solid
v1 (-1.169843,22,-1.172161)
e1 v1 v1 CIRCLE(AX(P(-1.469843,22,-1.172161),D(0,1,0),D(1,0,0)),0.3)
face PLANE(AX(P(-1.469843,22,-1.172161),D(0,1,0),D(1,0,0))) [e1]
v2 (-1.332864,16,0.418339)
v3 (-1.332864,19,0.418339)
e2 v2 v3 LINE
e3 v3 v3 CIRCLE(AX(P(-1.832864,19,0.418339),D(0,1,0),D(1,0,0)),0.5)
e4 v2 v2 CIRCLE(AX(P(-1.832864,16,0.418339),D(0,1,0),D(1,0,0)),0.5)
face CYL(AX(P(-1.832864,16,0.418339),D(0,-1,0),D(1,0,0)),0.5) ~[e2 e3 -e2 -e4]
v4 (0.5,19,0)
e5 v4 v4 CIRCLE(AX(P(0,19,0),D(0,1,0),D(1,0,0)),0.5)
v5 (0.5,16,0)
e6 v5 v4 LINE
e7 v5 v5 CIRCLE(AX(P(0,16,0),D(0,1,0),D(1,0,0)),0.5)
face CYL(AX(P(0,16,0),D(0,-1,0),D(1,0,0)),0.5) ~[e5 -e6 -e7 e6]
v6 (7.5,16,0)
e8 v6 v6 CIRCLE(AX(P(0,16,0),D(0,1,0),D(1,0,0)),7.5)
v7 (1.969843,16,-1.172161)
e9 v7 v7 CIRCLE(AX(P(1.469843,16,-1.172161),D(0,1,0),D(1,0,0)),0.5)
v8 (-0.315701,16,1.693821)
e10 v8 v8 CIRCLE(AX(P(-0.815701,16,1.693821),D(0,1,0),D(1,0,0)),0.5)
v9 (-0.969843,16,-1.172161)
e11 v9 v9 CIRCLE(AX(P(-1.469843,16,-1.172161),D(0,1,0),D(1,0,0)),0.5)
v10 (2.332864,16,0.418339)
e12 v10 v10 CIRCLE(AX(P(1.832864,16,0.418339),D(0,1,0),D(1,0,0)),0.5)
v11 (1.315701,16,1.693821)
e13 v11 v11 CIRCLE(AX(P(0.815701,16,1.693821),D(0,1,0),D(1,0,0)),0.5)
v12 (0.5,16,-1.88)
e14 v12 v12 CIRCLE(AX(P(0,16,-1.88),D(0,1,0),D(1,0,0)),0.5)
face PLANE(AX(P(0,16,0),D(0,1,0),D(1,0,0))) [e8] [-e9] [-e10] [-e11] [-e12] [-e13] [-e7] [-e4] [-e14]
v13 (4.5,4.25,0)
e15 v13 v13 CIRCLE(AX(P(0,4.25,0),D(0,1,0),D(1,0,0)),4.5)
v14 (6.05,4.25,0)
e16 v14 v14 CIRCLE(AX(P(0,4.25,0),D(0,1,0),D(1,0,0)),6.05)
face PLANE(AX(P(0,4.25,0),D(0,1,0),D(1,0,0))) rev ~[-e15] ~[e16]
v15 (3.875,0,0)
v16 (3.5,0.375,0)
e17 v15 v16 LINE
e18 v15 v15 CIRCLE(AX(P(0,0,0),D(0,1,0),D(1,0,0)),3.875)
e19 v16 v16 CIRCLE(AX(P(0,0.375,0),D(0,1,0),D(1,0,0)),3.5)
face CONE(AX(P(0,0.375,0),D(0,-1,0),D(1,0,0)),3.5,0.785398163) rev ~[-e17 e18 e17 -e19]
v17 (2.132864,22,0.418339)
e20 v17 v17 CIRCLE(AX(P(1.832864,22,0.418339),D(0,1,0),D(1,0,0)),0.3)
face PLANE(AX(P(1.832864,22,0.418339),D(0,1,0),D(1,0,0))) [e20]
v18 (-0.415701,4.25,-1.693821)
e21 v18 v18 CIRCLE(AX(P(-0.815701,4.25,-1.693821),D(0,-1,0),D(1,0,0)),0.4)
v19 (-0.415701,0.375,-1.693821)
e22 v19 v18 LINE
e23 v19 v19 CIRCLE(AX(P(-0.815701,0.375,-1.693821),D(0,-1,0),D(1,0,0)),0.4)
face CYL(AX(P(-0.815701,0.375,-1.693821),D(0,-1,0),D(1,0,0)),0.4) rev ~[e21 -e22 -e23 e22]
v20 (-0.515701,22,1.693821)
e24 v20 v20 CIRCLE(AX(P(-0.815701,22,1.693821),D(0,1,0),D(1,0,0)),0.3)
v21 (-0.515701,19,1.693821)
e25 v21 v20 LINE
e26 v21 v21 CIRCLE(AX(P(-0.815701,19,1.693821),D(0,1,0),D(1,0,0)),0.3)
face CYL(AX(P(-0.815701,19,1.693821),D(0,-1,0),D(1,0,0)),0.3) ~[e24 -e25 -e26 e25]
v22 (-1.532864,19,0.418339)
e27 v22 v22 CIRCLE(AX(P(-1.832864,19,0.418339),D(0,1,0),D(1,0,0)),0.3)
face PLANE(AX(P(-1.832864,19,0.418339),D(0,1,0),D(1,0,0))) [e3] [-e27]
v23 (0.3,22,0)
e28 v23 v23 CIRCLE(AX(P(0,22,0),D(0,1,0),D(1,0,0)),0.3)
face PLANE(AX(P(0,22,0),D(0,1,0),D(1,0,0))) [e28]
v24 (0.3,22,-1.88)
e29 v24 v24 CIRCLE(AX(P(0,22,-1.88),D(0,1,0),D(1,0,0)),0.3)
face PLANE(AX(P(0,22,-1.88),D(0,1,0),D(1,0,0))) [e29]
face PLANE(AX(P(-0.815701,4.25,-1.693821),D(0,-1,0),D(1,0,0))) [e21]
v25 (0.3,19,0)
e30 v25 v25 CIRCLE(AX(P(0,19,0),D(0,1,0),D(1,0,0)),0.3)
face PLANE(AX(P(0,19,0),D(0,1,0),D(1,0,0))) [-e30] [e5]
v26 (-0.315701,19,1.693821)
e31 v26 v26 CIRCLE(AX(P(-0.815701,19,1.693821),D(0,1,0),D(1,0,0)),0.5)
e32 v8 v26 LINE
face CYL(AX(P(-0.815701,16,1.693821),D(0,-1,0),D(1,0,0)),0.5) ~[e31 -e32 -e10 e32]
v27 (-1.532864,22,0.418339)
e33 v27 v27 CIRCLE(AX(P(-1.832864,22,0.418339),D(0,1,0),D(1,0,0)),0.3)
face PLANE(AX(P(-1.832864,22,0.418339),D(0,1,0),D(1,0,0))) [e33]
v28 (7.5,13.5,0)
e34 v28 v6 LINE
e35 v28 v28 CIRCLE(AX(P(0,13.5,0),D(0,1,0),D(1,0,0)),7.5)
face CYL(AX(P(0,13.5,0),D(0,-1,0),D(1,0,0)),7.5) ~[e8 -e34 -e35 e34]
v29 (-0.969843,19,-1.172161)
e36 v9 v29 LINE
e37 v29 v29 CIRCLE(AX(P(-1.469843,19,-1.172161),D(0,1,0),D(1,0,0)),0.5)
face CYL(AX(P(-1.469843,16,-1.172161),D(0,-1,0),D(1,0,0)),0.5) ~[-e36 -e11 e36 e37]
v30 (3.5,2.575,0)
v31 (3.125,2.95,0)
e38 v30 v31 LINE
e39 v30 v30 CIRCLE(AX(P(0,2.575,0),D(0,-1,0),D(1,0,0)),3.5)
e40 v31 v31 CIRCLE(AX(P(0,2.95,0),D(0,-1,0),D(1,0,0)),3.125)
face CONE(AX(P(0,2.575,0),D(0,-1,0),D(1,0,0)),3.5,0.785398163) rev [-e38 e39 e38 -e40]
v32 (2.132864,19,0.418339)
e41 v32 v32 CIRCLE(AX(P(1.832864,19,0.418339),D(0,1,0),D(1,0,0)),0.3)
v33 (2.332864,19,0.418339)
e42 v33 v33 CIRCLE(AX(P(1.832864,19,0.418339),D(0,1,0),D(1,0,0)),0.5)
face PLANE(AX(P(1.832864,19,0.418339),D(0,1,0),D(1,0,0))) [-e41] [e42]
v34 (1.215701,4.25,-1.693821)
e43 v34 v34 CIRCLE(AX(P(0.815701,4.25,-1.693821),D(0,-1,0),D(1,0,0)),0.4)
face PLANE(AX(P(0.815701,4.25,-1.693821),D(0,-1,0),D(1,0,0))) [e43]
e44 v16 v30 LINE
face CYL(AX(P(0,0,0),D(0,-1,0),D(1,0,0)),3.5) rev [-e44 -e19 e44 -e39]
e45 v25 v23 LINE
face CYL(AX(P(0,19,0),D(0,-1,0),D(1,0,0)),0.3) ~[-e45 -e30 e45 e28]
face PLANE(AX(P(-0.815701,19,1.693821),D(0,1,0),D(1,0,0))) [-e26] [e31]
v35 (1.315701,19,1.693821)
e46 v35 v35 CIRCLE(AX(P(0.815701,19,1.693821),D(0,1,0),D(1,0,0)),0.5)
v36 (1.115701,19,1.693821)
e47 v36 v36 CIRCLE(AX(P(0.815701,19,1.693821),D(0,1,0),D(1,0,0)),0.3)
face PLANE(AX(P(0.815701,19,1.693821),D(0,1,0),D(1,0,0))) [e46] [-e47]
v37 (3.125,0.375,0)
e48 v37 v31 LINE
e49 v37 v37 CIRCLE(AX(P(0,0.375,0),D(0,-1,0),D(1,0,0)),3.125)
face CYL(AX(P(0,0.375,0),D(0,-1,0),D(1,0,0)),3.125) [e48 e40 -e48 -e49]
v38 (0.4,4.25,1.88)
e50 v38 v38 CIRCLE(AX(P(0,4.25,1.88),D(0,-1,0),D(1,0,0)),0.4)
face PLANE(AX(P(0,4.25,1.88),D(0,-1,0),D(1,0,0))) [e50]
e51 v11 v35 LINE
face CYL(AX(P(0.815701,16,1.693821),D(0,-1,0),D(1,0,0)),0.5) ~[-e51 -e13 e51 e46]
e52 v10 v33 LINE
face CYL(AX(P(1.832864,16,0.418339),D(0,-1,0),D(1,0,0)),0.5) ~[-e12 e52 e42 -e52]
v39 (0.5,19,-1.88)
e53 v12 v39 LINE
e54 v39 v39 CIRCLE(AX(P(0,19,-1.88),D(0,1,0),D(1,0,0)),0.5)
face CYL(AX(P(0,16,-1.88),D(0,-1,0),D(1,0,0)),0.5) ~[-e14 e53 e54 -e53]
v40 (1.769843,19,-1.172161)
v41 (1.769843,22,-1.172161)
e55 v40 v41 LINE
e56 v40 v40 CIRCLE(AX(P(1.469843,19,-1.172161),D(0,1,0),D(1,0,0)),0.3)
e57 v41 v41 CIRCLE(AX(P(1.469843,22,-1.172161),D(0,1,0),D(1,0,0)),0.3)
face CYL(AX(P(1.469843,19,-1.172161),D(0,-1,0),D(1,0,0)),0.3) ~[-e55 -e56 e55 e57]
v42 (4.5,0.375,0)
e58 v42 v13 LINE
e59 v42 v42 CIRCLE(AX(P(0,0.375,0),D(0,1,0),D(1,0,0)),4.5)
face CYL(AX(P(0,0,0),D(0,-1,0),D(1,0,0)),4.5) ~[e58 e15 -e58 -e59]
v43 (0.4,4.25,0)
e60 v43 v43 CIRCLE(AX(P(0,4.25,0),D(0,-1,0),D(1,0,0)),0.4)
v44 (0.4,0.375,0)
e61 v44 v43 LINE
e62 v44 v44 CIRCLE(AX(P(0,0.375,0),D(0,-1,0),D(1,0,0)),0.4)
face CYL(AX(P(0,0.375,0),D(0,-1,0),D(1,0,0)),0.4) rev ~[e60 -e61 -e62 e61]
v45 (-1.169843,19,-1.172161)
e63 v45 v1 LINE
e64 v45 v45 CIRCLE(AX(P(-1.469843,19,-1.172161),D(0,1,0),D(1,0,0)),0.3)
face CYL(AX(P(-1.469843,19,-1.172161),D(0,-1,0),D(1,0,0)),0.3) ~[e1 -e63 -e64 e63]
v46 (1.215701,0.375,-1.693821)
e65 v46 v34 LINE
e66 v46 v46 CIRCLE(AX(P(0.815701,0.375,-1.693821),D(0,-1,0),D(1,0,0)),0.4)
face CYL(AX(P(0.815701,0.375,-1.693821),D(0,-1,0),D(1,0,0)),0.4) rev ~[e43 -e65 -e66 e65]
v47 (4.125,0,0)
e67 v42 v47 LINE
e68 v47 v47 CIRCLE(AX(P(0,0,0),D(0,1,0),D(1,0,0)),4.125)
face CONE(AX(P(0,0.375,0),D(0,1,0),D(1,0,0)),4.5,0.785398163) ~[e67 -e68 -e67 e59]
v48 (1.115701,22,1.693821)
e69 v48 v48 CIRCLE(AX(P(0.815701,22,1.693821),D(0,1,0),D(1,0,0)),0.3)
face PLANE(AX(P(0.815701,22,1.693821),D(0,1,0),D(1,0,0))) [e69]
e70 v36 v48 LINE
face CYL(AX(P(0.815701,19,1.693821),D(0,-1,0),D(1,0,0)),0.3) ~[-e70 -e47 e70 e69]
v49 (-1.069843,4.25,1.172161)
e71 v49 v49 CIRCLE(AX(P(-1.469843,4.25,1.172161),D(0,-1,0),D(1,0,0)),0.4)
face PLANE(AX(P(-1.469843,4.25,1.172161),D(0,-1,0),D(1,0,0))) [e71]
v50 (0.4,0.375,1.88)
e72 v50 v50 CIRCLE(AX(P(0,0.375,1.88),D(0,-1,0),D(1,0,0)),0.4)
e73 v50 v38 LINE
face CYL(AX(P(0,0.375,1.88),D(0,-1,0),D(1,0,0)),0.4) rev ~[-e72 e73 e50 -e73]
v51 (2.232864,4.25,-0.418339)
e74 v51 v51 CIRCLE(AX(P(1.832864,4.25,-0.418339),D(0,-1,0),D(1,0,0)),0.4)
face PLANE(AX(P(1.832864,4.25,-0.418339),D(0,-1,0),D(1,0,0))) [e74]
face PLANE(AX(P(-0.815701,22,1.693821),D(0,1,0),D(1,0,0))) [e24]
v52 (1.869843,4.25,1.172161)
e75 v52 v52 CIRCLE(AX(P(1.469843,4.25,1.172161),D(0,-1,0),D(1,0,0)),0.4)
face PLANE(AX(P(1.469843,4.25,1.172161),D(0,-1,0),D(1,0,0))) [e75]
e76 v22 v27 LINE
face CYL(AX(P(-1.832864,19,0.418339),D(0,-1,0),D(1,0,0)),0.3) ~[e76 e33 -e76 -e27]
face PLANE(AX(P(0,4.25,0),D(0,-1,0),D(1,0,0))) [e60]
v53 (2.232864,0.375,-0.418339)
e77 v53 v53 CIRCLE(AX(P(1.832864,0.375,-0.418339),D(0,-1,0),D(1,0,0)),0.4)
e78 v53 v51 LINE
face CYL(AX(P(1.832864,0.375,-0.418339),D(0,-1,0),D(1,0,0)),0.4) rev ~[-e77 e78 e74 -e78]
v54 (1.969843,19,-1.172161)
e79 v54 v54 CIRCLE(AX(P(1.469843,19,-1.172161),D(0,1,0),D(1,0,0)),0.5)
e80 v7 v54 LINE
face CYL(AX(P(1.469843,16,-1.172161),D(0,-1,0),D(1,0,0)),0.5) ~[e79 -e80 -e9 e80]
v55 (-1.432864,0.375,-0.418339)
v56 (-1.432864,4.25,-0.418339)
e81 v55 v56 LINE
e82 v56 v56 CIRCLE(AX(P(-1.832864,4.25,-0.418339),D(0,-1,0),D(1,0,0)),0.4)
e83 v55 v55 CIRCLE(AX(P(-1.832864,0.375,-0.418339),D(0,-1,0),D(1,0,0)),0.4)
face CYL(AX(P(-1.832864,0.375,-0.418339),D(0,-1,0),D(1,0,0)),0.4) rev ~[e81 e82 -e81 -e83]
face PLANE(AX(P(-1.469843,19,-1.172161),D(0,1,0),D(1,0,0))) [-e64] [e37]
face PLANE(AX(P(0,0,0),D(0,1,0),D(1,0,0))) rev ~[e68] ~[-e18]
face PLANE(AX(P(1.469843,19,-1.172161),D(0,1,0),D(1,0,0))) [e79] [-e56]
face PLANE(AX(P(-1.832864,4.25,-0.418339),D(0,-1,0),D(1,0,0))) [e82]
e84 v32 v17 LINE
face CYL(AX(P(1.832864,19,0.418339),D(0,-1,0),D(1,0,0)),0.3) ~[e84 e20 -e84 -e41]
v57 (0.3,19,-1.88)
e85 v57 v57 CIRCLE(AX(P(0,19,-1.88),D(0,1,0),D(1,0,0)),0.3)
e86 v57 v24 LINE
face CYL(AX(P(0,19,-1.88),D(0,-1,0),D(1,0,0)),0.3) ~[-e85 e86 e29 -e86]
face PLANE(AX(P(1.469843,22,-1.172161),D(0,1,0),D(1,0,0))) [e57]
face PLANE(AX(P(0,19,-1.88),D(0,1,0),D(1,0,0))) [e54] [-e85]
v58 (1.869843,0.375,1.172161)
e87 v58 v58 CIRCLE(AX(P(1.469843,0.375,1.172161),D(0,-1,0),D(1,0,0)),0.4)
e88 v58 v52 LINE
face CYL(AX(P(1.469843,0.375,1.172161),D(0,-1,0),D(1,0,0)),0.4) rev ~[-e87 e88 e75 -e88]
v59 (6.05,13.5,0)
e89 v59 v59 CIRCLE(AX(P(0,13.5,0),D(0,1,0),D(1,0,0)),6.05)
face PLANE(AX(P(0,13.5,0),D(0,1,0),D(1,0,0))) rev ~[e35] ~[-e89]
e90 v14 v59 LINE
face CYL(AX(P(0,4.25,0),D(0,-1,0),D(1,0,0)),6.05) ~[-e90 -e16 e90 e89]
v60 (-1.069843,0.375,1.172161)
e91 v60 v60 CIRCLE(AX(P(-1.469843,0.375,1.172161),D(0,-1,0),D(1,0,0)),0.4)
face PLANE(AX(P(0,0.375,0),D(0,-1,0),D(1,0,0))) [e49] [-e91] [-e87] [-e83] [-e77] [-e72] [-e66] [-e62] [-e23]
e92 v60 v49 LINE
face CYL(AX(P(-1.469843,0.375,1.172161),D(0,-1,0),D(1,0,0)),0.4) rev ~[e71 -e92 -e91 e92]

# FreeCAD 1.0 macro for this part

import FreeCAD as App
import Part
import Sketcher

V = App.Vector
Q = App.Units.Quantity


def edges_at(feature, points):
    """Names of the edges that pass closest to the given points."""
    edges = feature.Shape.Edges
    near = lambda p: min(range(len(edges)), key=lambda i: edges[i].distToShape(Part.Vertex(*p))[0])
    return sorted({f"Edge{near(p) + 1}" for p in points})

doc = App.newDocument("Part")
body = doc.addObject("PartDesign::Body", "Body")

# Sketch on XZ plane
sketch1 = body.newObject("Sketcher::SketchObject", "Sketch")
sketch1.AttachmentSupport = (doc.getObject("XZ_Plane"), [""])
sketch1.MapMode = "FlatFace"
sketch1.addGeometry([
    Part.Circle(V(0, 0, 0), V(0, 0, 1), 4.5),
    Part.Circle(V(0, 0, 0), V(0, 0, 1), 3.5),
], False)
sketch1.addConstraint([
    Sketcher.Constraint("Coincident", 0, 3, -1, 1),
    Sketcher.Constraint("Coincident", 1, 3, -1, 1),
    Sketcher.Constraint("Diameter", 0, Q("9 mm")),
    Sketcher.Constraint("Diameter", 1, Q("7 mm")),
])
pad1 = body.newObject("PartDesign::Pad", "Pad")
pad1.Profile = sketch1
pad1.Length = 4.25
pad1.Reversed = True

# Sketch on XZ plane
sketch2 = body.newObject("Sketcher::SketchObject", "Sketch001")
sketch2.AttachmentSupport = (doc.getObject("XZ_Plane"), [""])
sketch2.MapMode = "FlatFace"
sketch2.AttachmentOffset = App.Placement(V(0, 0, -4.25), App.Rotation())
sketch2.addGeometry(Part.Circle(V(0, 0, 0), V(0, 0, 1), 4.2), False)
sketch2.addConstraint([
    Sketcher.Constraint("Coincident", 0, 3, -1, 1),
    Sketcher.Constraint("Diameter", 0, Q("8.5 mm")),
])
pad2 = body.newObject("PartDesign::Pad", "Pad001")
pad2.Profile = sketch2
pad2.Length = 1.3

# Sketch on XZ plane
sketch3 = body.newObject("Sketcher::SketchObject", "Sketch002")
sketch3.AttachmentSupport = (doc.getObject("XZ_Plane"), [""])
sketch3.MapMode = "FlatFace"
sketch3.AttachmentOffset = App.Placement(V(0, 0, -4.25), App.Rotation())
sketch3.addGeometry(Part.Circle(V(0, 0, 0), V(0, 0, 1), 6), False)
sketch3.addConstraint([
    Sketcher.Constraint("Coincident", 0, 3, -1, 1),
    Sketcher.Constraint("Diameter", 0, Q("12.1 mm")),
])
pad3 = body.newObject("PartDesign::Pad", "Pad002")
pad3.Profile = sketch3
pad3.Length = 9.25
pad3.Reversed = True

# Sketch on XZ plane
sketch4 = body.newObject("Sketcher::SketchObject", "Sketch003")
sketch4.AttachmentSupport = (doc.getObject("XZ_Plane"), [""])
sketch4.MapMode = "FlatFace"
sketch4.AttachmentOffset = App.Placement(V(0, 0, -13.5), App.Rotation())
sketch4.addGeometry(Part.Circle(V(0, 0, 0), V(0, 0, 1), 8), False)
sketch4.addConstraint([
    Sketcher.Constraint("Coincident", 0, 3, -1, 1),
    Sketcher.Constraint("Diameter", 0, Q("15 mm")),
])
pad4 = body.newObject("PartDesign::Pad", "Pad003")
pad4.Profile = sketch4
pad4.Length = 2.5
pad4.Reversed = True

# Sketch on XZ plane
sketch5 = body.newObject("Sketcher::SketchObject", "Sketch004")
sketch5.AttachmentSupport = (doc.getObject("XZ_Plane"), [""])
sketch5.MapMode = "FlatFace"
sketch5.AttachmentOffset = App.Placement(V(0, 0, -16), App.Rotation())
sketch5.addGeometry([
    Part.Circle(V(0, 0, 0), V(0, 0, 1), 0.5),  # 0
    Part.Circle(V(0, -1.9, 0), V(0, 0, 1), 0.5),  # 1
    Part.Circle(V(1.5, -1.2, 0), V(0, 0, 1), 0.5),  # 2
    Part.Circle(V(1.8, 0.4, 0), V(0, 0, 1), 0.5),  # 3
    Part.Circle(V(0.8, 1.7, 0), V(0, 0, 1), 0.5),  # 4
    Part.Circle(V(-0.8, 1.7, 0), V(0, 0, 1), 0.5),  # 5
    Part.Circle(V(-1.8, 0.4, 0), V(0, 0, 1), 0.5),  # 6
    Part.Circle(V(-1.5, -1.2, 0), V(0, 0, 1), 0.5),  # 7
], False)
sketch5.addConstraint([
    Sketcher.Constraint("Coincident", 0, 3, -1, 1),
    Sketcher.Constraint("Equal", 0, 1),
    Sketcher.Constraint("Equal", 1, 2),
    Sketcher.Constraint("Equal", 2, 3),
    Sketcher.Constraint("Equal", 3, 4),
    Sketcher.Constraint("Equal", 4, 5),
    Sketcher.Constraint("Equal", 5, 6),
    Sketcher.Constraint("Equal", 6, 7),
    Sketcher.Constraint("Symmetric", 4, 3, 5, 3, -2),
    Sketcher.Constraint("Symmetric", 3, 3, 6, 3, -2),
    Sketcher.Constraint("Symmetric", 2, 3, 7, 3, -2),
    Sketcher.Constraint("PointOnObject", 1, 3, -2),
    Sketcher.Constraint("Diameter", 0, Q("1 mm")),
    Sketcher.Constraint("DistanceY", 1, 3, -1, 1, Q("1.88 mm")),
    Sketcher.Constraint("DistanceX", -1, 1, 4, 3, Q("0.815701 mm")),
    Sketcher.Constraint("DistanceY", 2, 3, 3, 3, Q("1.5905 mm")),
    Sketcher.Constraint("DistanceY", 2, 3, -1, 1, Q("1.172161 mm")),
    Sketcher.Constraint("DistanceY", -1, 1, 4, 3, Q("1.693821 mm")),
    Sketcher.Constraint("DistanceX", 2, 3, 3, 3, Q("0.363021 mm")),
    Sketcher.Constraint("DistanceX", 4, 3, 2, 3, Q("0.654142 mm")),
])
pad5 = body.newObject("PartDesign::Pad", "Pad004")
pad5.Profile = sketch5
pad5.Length = 3
pad5.Reversed = True

# Sketch on XZ plane
sketch6 = body.newObject("Sketcher::SketchObject", "Sketch005")
sketch6.AttachmentSupport = (doc.getObject("XZ_Plane"), [""])
sketch6.MapMode = "FlatFace"
sketch6.AttachmentOffset = App.Placement(V(0, 0, -19), App.Rotation())
sketch6.addGeometry(Part.Circle(V(-0.82, 1.69, 0), V(0, 0, 1), 0.3), False)
sketch6.addConstraint([
    Sketcher.Constraint("Diameter", 0, Q("0.6 mm")),
    Sketcher.Constraint("DistanceX", 0, 3, -1, 1, Q("0.815701 mm")),
    Sketcher.Constraint("DistanceY", -1, 1, 0, 3, Q("1.693821 mm")),
])
pad6 = body.newObject("PartDesign::Pad", "Pad005")
pad6.Profile = sketch6
pad6.Length = 3
pad6.Reversed = True

# Sketch on XZ plane
sketch7 = body.newObject("Sketcher::SketchObject", "Sketch006")
sketch7.AttachmentSupport = (doc.getObject("XZ_Plane"), [""])
sketch7.MapMode = "FlatFace"
sketch7.AttachmentOffset = App.Placement(V(0, 0, -19), App.Rotation())
sketch7.addGeometry([
    Part.Circle(V(0, 0, 0), V(0, 0, 1), 0.3),  # 0
    Part.Circle(V(0, -1.88, 0), V(0, 0, 1), 0.3),  # 1
    Part.Circle(V(1.47, -1.17, 0), V(0, 0, 1), 0.3),  # 2
    Part.Circle(V(1.83, 0.42, 0), V(0, 0, 1), 0.3),  # 3
    Part.Circle(V(0.82, 1.69, 0), V(0, 0, 1), 0.3),  # 4
    Part.Circle(V(-0.82, 1.69, 0), V(0, 0, 1), 0.3),  # 5
    Part.Circle(V(-1.83, 0.42, 0), V(0, 0, 1), 0.3),  # 6
    Part.Circle(V(-1.47, -1.17, 0), V(0, 0, 1), 0.3),  # 7
], False)
sketch7.addConstraint([
    Sketcher.Constraint("Coincident", 0, 3, -1, 1),
    Sketcher.Constraint("Equal", 0, 1),
    Sketcher.Constraint("Equal", 1, 2),
    Sketcher.Constraint("Equal", 2, 3),
    Sketcher.Constraint("Equal", 3, 4),
    Sketcher.Constraint("Equal", 4, 5),
    Sketcher.Constraint("Equal", 5, 6),
    Sketcher.Constraint("Equal", 6, 7),
    Sketcher.Constraint("Symmetric", 4, 3, 5, 3, -2),
    Sketcher.Constraint("Symmetric", 3, 3, 6, 3, -2),
    Sketcher.Constraint("Symmetric", 2, 3, 7, 3, -2),
    Sketcher.Constraint("PointOnObject", 1, 3, -2),
    Sketcher.Constraint("Diameter", 0, Q("0.6 mm")),
    Sketcher.Constraint("DistanceY", 1, 3, -1, 1, Q("1.88 mm")),
    Sketcher.Constraint("DistanceX", -1, 1, 4, 3, Q("0.815701 mm")),
    Sketcher.Constraint("DistanceY", 2, 3, 3, 3, Q("1.5905 mm")),
    Sketcher.Constraint("DistanceY", 2, 3, -1, 1, Q("1.172161 mm")),
    Sketcher.Constraint("DistanceY", -1, 1, 4, 3, Q("1.693821 mm")),
    Sketcher.Constraint("DistanceX", 2, 3, 3, 3, Q("0.363021 mm")),
    Sketcher.Constraint("DistanceX", 4, 3, 2, 3, Q("0.654142 mm")),
])
pad7 = body.newObject("PartDesign::Pad", "Pad006")
pad7.Profile = sketch7
pad7.Length = 3
pad7.Reversed = True
doc.recompute()

chamfer = body.newObject("PartDesign::Chamfer", "Chamfer")
chamfer.Base = (pad7, edges_at(pad7, [(-4.5, 0, 0)]))
chamfer.Size = 0.375
doc.recompute()

chamfer2 = body.newObject("PartDesign::Chamfer", "Chamfer001")
chamfer2.Base = (chamfer, edges_at(chamfer, [(-3.5, 2.95, 0), (-3.5, 0, 0)]))
chamfer2.Size = 0.375

# Sketch on XZ plane
sketch8 = body.newObject("Sketcher::SketchObject", "Sketch007")
sketch8.AttachmentSupport = (doc.getObject("XZ_Plane"), [""])
sketch8.MapMode = "FlatFace"
sketch8.AttachmentOffset = App.Placement(V(0, 0, -0.375), App.Rotation())
sketch8.addGeometry(Part.Circle(V(0, 0, 0), V(0, 0, 1), 3.1), False)
sketch8.addConstraint([
    Sketcher.Constraint("Coincident", 0, 3, -1, 1),
    Sketcher.Constraint("Diameter", 0, Q("6.25 mm")),
])
pad8 = body.newObject("PartDesign::Pad", "Pad007")
pad8.Profile = sketch8
pad8.Type = "UpToFirst"
pad8.Reversed = True

# Sketch on XZ plane
sketch9 = body.newObject("Sketcher::SketchObject", "Sketch008")
sketch9.AttachmentSupport = (doc.getObject("XZ_Plane"), [""])
sketch9.MapMode = "FlatFace"
sketch9.AttachmentOffset = App.Placement(V(0, 0, -0.375), App.Rotation())
sketch9.addGeometry([
    Part.Circle(V(0, 0, 0), V(0, 0, 1), 0.4),  # 0
    Part.Circle(V(0, 1.88, 0), V(0, 0, 1), 0.4),  # 1
    Part.Circle(V(1.47, 1.17, 0), V(0, 0, 1), 0.4),  # 2
    Part.Circle(V(1.83, -0.42, 0), V(0, 0, 1), 0.4),  # 3
    Part.Circle(V(0.82, -1.69, 0), V(0, 0, 1), 0.4),  # 4
    Part.Circle(V(-0.82, -1.69, 0), V(0, 0, 1), 0.4),  # 5
    Part.Circle(V(-1.83, -0.42, 0), V(0, 0, 1), 0.4),  # 6
    Part.Circle(V(-1.47, 1.17, 0), V(0, 0, 1), 0.4),  # 7
], False)
sketch9.addConstraint([
    Sketcher.Constraint("Coincident", 0, 3, -1, 1),
    Sketcher.Constraint("Equal", 0, 1),
    Sketcher.Constraint("Equal", 1, 2),
    Sketcher.Constraint("Equal", 2, 3),
    Sketcher.Constraint("Equal", 3, 4),
    Sketcher.Constraint("Equal", 4, 5),
    Sketcher.Constraint("Equal", 5, 6),
    Sketcher.Constraint("Equal", 6, 7),
    Sketcher.Constraint("Symmetric", 4, 3, 5, 3, -2),
    Sketcher.Constraint("Symmetric", 3, 3, 6, 3, -2),
    Sketcher.Constraint("Symmetric", 2, 3, 7, 3, -2),
    Sketcher.Constraint("PointOnObject", 1, 3, -2),
    Sketcher.Constraint("Diameter", 0, Q("0.8 mm")),
    Sketcher.Constraint("DistanceY", -1, 1, 1, 3, Q("1.88 mm")),
    Sketcher.Constraint("DistanceX", -1, 1, 4, 3, Q("0.815701 mm")),
    Sketcher.Constraint("DistanceY", 3, 3, 2, 3, Q("1.5905 mm")),
    Sketcher.Constraint("DistanceY", -1, 1, 2, 3, Q("1.172161 mm")),
    Sketcher.Constraint("DistanceY", 4, 3, -1, 1, Q("1.693821 mm")),
    Sketcher.Constraint("DistanceX", 2, 3, 3, 3, Q("0.363021 mm")),
    Sketcher.Constraint("DistanceX", 4, 3, 2, 3, Q("0.654142 mm")),
])
pocket1 = body.newObject("PartDesign::Pocket", "Pocket")
pocket1.Profile = sketch9
pocket1.Length = 3.875

doc.recompute()
